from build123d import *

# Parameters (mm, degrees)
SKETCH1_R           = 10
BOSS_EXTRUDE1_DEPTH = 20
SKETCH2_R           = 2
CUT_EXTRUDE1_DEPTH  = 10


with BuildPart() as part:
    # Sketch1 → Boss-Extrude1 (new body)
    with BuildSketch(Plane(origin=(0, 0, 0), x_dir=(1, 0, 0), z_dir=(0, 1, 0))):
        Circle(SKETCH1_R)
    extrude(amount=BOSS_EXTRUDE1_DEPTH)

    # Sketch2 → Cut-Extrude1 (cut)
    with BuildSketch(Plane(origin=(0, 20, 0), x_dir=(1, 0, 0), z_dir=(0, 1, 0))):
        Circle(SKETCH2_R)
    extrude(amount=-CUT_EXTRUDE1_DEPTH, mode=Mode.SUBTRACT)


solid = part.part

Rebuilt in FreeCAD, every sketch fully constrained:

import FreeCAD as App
import Part
import Sketcher

doc = App.newDocument("Part")
body = doc.addObject("PartDesign::Body", "Body")

# Sketch on XZ plane
sketch1 = doc.addObject("Sketcher::SketchObject", "Sketch")
body.addObject(sketch1)
sketch1.AttachmentSupport = (doc.XZ_Plane, [""])
sketch1.MapMode = "FlatFace"
sketch1.addGeometry(Part.Circle(App.Vector(0, 0, 0), App.Vector(0, 0, 1), 10), False)
sketch1.addConstraint(Sketcher.Constraint("Coincident", 0, 3, -1, 1))
sketch1.addConstraint(Sketcher.Constraint("Diameter", 0, 20.0))
pad1 = doc.addObject("PartDesign::Pad", "Pad")
body.addObject(pad1)
pad1.Profile = sketch1
pad1.Length = 20
pad1.Reversed = True

# Sketch on XZ plane
sketch2 = doc.addObject("Sketcher::SketchObject", "Sketch001")
body.addObject(sketch2)
sketch2.AttachmentSupport = (doc.XZ_Plane, [""])
sketch2.MapMode = "FlatFace"
sketch2.AttachmentOffset = App.Placement(App.Vector(0, 0, -20), App.Rotation())
sketch2.addGeometry(Part.Circle(App.Vector(0, 0, 0), App.Vector(0, 0, 1), 2), False)
sketch2.addConstraint(Sketcher.Constraint("Coincident", 0, 3, -1, 1))
sketch2.addConstraint(Sketcher.Constraint("Diameter", 0, 4.0))
pocket1 = doc.addObject("PartDesign::Pocket", "Pocket")
body.addObject(pocket1)
pocket1.Profile = sketch2
pocket1.Length = 10
pocket1.Reversed = True

doc.recompute()
